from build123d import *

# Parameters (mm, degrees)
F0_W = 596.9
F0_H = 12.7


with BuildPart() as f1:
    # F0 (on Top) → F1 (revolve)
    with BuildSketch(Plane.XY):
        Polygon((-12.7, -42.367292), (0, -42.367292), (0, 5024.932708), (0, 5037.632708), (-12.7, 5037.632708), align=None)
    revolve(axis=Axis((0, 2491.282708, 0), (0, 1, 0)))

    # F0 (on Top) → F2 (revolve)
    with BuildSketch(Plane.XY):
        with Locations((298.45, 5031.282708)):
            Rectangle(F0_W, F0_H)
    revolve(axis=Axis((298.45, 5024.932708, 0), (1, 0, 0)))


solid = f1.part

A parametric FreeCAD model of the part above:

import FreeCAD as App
import Part
import Sketcher
Q = App.Units.Quantity

doc = App.newDocument("Part")
body = doc.addObject("PartDesign::Body", "Body")

# Sketch on XY plane
sketch1 = body.newObject("Sketcher::SketchObject", "Sketch")
sketch1.AttachmentSupport = (doc.getObject("XY_Plane"), [""])
sketch1.MapMode = "FlatFace"
sketch1.addGeometry([
    Part.LineSegment(App.Vector(-13, -42, 0), App.Vector(0, -42, 0)),
    Part.LineSegment(App.Vector(0, -42, 0), App.Vector(0, 5038, 0)),
    Part.LineSegment(App.Vector(0, 5038, 0), App.Vector(-13, 5038, 0)),
    Part.LineSegment(App.Vector(-13, 5038, 0), App.Vector(-13, -42, 0)),
], False)
sketch1.addConstraint([
    Sketcher.Constraint("Coincident", 0, 2, 1, 1),
    Sketcher.Constraint("Coincident", 1, 2, 2, 1),
    Sketcher.Constraint("Coincident", 2, 2, 3, 1),
    Sketcher.Constraint("Coincident", 3, 2, 0, 1),
    Sketcher.Constraint("Horizontal", 0),
    Sketcher.Constraint("Vertical", 1),
    Sketcher.Constraint("Horizontal", 2),
    Sketcher.Constraint("Vertical", 3),
    Sketcher.Constraint("PointOnObject", 0, 2, -2),
    Sketcher.Constraint("DistanceY", 1, 1, 1, 2, Q("200 in")),
    Sketcher.Constraint("DistanceX", 0, 1, 0, 2, Q("0.5 in")),
    Sketcher.Constraint("DistanceY", -1, 1, 1, 2, Q("5037.632708 mm")),
])
revolution = body.newObject("PartDesign::Revolution", "Revolution")
revolution.Profile = sketch1
revolution.ReferenceAxis = (sketch1, ["V_Axis"])
revolution.Angle = 360

# Sketch on XY plane
sketch2 = body.newObject("Sketcher::SketchObject", "Sketch001")
sketch2.AttachmentSupport = (doc.getObject("XY_Plane"), [""])
sketch2.MapMode = "FlatFace"
sketch2.addGeometry([
    Part.LineSegment(App.Vector(0, 5038, 0), App.Vector(0, 5025, 0)),
    Part.LineSegment(App.Vector(0, 5025, 0), App.Vector(597, 5025, 0)),
    Part.LineSegment(App.Vector(597, 5025, 0), App.Vector(597, 5038, 0)),
    Part.LineSegment(App.Vector(597, 5038, 0), App.Vector(0, 5038, 0)),
], False)
sketch2.addGeometry(Part.LineSegment(App.Vector(0, 5025, 0), App.Vector(597, 5025, 0)), True)  # axis
sketch2.addConstraint([
    Sketcher.Constraint("Coincident", 0, 2, 1, 1),
    Sketcher.Constraint("Coincident", 1, 2, 2, 1),
    Sketcher.Constraint("Coincident", 2, 2, 3, 1),
    Sketcher.Constraint("Coincident", 3, 2, 0, 1),
    Sketcher.Constraint("Vertical", 0),
    Sketcher.Constraint("Horizontal", 1),
    Sketcher.Constraint("Vertical", 2),
    Sketcher.Constraint("Horizontal", 3),
    Sketcher.Constraint("Horizontal", 4),
    Sketcher.Constraint("Coincident", 4, 1, 0, 2),
    Sketcher.Constraint("PointOnObject", 0, 2, -2),
    Sketcher.Constraint("Vertical", 2, 2, 4, 2),
    Sketcher.Constraint("DistanceX", 1, 1, 1, 2, Q("23.5 in")),
    Sketcher.Constraint("DistanceY", 0, 2, 0, 1, Q("0.5 in")),
    Sketcher.Constraint("DistanceY", -1, 1, 0, 2, Q("5024.932708 mm")),
])
revolution2 = body.newObject("PartDesign::Revolution", "Revolution001")
revolution2.Profile = sketch2
revolution2.ReferenceAxis = (sketch2, ["Axis0"])
revolution2.Angle = 360

doc.recompute()
